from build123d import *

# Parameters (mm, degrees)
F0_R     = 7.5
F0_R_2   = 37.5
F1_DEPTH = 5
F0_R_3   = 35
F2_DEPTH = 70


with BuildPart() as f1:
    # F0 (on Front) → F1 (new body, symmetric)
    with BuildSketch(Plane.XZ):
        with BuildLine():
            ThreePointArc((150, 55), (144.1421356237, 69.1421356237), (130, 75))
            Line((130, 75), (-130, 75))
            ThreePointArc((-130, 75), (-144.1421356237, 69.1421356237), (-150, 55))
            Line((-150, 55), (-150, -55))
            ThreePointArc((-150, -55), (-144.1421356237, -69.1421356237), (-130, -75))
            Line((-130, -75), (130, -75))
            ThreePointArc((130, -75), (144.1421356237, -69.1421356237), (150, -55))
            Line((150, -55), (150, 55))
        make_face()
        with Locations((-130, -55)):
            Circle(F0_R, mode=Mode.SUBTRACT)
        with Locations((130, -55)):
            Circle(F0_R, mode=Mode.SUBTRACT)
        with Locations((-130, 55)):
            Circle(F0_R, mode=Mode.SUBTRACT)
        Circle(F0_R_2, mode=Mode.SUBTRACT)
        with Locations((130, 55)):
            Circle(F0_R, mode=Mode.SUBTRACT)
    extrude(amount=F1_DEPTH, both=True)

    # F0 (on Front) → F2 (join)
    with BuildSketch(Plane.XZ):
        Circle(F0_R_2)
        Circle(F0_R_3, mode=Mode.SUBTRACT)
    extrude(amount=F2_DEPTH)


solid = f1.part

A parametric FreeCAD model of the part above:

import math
import FreeCAD as App
import Part
import Sketcher

V = App.Vector
Q = App.Units.Quantity

doc = App.newDocument("Part")
body = doc.addObject("PartDesign::Body", "Body")

sketch1 = body.newObject("Sketcher::SketchObject", "Sketch")
sketch1.AttachmentSupport = (doc.getObject("XZ_Plane"), [""])
sketch1.MapMode = "FlatFace"
sketch1.addGeometry(Part.ArcOfCircle(Part.Circle(V(130, 55, 0), V(0, 0, 1), 20), math.radians(0), math.radians(90)), False)
sketch1.addGeometry(Part.LineSegment(V(130, 75, 0), V(-130, 75, 0)), False)
sketch1.addGeometry(Part.ArcOfCircle(Part.Circle(V(-130, 55, 0), V(0, 0, 1), 20), math.radians(90), math.radians(180)), False)
sketch1.addGeometry(Part.LineSegment(V(-150, 55, 0), V(-150, -55, 0)), False)
sketch1.addGeometry(Part.ArcOfCircle(Part.Circle(V(-130, -55, 0), V(0, 0, 1), 20), math.radians(180), math.radians(270)), False)
sketch1.addGeometry(Part.LineSegment(V(-130, -75, 0), V(130, -75, 0)), False)
sketch1.addGeometry(Part.ArcOfCircle(Part.Circle(V(130, -55, 0), V(0, 0, 1), 20), math.radians(-90), math.radians(0)), False)
sketch1.addGeometry(Part.LineSegment(V(150, -55, 0), V(150, 55, 0)), False)
sketch1.addGeometry(Part.Circle(V(-130, -55, 0), V(0, 0, 1), 8), False)
sketch1.addGeometry(Part.Circle(V(130, -55, 0), V(0, 0, 1), 8), False)
sketch1.addGeometry(Part.Circle(V(-130, 55, 0), V(0, 0, 1), 8), False)
sketch1.addGeometry(Part.Circle(V(0, 0, 0), V(0, 0, 1), 38), False)
sketch1.addGeometry(Part.Circle(V(130, 55, 0), V(0, 0, 1), 8), False)
sketch1.addConstraint(Sketcher.Constraint("Tangent", 0, 2, 1, 1))
sketch1.addConstraint(Sketcher.Constraint("Tangent", 1, 2, 2, 1))
sketch1.addConstraint(Sketcher.Constraint("Tangent", 2, 2, 3, 1))
sketch1.addConstraint(Sketcher.Constraint("Tangent", 3, 2, 4, 1))
sketch1.addConstraint(Sketcher.Constraint("Tangent", 4, 2, 5, 1))
sketch1.addConstraint(Sketcher.Constraint("Tangent", 5, 2, 6, 1))
sketch1.addConstraint(Sketcher.Constraint("Tangent", 6, 2, 7, 1))
sketch1.addConstraint(Sketcher.Constraint("Tangent", 7, 2, 0, 1))
sketch1.addConstraint(Sketcher.Constraint("Horizontal", 1))
sketch1.addConstraint(Sketcher.Constraint("Vertical", 3))
sketch1.addConstraint(Sketcher.Constraint("Horizontal", 5))
sketch1.addConstraint(Sketcher.Constraint("Vertical", 7))
sketch1.addConstraint(Sketcher.Constraint("Coincident", 11, 3, -1, 1))
sketch1.addConstraint(Sketcher.Constraint("Coincident", 8, 3, 4, 3))
sketch1.addConstraint(Sketcher.Constraint("Coincident", 9, 3, 6, 3))
sketch1.addConstraint(Sketcher.Constraint("Coincident", 10, 3, 2, 3))
sketch1.addConstraint(Sketcher.Constraint("Coincident", 12, 3, 0, 3))
sketch1.addConstraint(Sketcher.Constraint("Equal", 0, 2))
sketch1.addConstraint(Sketcher.Constraint("Equal", 2, 4))
sketch1.addConstraint(Sketcher.Constraint("Equal", 4, 6))
sketch1.addConstraint(Sketcher.Constraint("Equal", 8, 9))
sketch1.addConstraint(Sketcher.Constraint("Equal", 9, 10))
sketch1.addConstraint(Sketcher.Constraint("Equal", 10, 12))
sketch1.addConstraint(Sketcher.Constraint("Symmetric", 0, 3, 4, 3, -1, 1))
sketch1.addConstraint(Sketcher.Constraint("Diameter", 8, Q("15 mm")))
sketch1.addConstraint(Sketcher.Constraint("Diameter", 11, Q("75 mm")))
sketch1.addConstraint(Sketcher.Constraint("Radius", 0, Q("20 mm")))
sketch1.addConstraint(Sketcher.Constraint("DistanceX", 1, 2, 1, 1, Q("260 mm")))
sketch1.addConstraint(Sketcher.Constraint("DistanceY", 3, 2, 3, 1, Q("110 mm")))
pad1 = body.newObject("PartDesign::Pad", "Pad")
pad1.Profile = sketch1
pad1.Length = 10
pad1.Midplane = True

sketch2 = body.newObject("Sketcher::SketchObject", "Sketch001")
sketch2.AttachmentSupport = (doc.getObject("XZ_Plane"), [""])
sketch2.MapMode = "FlatFace"
sketch2.addGeometry(Part.Circle(V(0, 0, 0), V(0, 0, 1), 38), False)
sketch2.addGeometry(Part.Circle(V(0, 0, 0), V(0, 0, 1), 35), False)
sketch2.addConstraint(Sketcher.Constraint("Coincident", 0, 3, -1, 1))
sketch2.addConstraint(Sketcher.Constraint("Coincident", 1, 3, -1, 1))
sketch2.addConstraint(Sketcher.Constraint("Diameter", 0, Q("75 mm")))
sketch2.addConstraint(Sketcher.Constraint("Diameter", 1, Q("70 mm")))
pad2 = body.newObject("PartDesign::Pad", "Pad001")
pad2.Profile = sketch2
pad2.Length = 70

doc.recompute()
